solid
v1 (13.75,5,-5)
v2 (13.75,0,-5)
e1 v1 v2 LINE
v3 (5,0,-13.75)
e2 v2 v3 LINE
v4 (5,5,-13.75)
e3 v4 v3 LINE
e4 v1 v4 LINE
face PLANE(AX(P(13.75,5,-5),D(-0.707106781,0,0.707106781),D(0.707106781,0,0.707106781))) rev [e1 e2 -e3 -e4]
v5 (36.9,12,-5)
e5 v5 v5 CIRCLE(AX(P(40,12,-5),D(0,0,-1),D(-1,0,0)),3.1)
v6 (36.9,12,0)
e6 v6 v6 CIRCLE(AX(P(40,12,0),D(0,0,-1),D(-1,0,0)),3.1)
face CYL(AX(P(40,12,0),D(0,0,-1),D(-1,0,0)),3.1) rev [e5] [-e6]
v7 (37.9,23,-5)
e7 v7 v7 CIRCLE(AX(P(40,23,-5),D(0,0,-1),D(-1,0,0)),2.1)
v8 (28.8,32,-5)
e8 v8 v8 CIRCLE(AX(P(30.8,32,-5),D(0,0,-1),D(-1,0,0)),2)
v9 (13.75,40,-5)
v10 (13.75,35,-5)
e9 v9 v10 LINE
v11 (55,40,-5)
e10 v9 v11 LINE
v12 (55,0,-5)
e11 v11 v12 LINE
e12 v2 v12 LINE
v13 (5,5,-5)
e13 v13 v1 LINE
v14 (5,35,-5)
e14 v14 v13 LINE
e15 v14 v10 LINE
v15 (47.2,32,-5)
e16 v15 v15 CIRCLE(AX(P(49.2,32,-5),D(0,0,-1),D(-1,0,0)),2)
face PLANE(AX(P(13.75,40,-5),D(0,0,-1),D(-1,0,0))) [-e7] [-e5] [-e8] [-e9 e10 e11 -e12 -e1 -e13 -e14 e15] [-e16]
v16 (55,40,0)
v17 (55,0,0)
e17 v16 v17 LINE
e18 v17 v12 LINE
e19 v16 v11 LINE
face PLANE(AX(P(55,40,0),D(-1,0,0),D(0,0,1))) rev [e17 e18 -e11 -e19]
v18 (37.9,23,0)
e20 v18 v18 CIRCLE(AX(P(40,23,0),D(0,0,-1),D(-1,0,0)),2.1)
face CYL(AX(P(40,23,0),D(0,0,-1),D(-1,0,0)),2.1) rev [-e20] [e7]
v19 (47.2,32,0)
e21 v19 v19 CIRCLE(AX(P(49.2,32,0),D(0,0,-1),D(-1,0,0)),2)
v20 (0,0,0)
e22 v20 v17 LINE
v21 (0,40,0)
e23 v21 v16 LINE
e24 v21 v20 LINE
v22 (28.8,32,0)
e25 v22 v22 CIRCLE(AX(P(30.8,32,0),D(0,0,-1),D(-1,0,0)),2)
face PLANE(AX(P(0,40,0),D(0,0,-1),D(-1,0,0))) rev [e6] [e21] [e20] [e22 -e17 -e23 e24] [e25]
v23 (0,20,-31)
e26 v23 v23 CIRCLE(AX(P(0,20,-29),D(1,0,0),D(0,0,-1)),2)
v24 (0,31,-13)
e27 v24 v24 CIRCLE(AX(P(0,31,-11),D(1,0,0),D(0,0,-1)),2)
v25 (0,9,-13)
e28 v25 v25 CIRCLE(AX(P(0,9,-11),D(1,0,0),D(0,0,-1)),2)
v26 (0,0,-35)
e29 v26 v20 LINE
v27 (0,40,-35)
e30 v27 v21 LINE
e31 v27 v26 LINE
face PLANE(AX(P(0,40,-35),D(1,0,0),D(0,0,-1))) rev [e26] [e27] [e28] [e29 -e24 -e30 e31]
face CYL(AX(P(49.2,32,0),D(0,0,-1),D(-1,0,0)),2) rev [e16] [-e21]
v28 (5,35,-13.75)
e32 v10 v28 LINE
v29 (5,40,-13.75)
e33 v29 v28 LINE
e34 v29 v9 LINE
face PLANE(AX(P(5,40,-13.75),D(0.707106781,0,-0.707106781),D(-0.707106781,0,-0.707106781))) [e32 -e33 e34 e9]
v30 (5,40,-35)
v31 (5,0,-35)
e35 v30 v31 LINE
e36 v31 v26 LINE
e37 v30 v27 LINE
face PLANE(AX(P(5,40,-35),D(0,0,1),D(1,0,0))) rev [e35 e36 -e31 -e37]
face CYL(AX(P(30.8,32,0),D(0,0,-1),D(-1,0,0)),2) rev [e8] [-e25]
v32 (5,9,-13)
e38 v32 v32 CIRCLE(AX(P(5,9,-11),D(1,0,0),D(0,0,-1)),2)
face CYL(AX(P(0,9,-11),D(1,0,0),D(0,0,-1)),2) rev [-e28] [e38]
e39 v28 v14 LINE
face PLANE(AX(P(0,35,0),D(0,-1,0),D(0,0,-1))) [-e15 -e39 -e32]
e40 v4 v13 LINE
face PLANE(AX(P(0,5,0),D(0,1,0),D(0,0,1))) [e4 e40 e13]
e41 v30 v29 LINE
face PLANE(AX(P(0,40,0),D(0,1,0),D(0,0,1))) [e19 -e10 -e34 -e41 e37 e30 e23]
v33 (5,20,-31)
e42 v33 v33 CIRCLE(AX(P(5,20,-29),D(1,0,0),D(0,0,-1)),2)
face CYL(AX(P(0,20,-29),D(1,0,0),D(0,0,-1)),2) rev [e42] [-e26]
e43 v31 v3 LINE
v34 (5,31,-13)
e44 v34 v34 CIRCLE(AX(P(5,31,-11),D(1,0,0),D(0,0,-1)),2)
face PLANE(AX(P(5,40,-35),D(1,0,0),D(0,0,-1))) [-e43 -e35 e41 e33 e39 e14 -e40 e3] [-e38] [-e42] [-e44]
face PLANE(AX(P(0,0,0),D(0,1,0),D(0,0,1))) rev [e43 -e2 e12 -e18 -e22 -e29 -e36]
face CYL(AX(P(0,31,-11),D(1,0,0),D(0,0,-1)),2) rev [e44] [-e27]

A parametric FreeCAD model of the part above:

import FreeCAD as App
import Part
import Sketcher
Q = App.Units.Quantity

doc = App.newDocument("Part")
body = doc.addObject("PartDesign::Body", "Body")

sketch1 = body.newObject("Sketcher::SketchObject", "Sketch")
sketch1.AttachmentSupport = (doc.getObject("XZ_Plane"), [""])
sketch1.MapMode = "FlatFace"
sketch1.addGeometry([
    Part.LineSegment(App.Vector(0, 0, 0), App.Vector(55, 0, 0)),
    Part.LineSegment(App.Vector(55, 0, 0), App.Vector(55, -5, 0)),
    Part.LineSegment(App.Vector(55, -5, 0), App.Vector(14, -5, 0)),
    Part.LineSegment(App.Vector(14, -5, 0), App.Vector(5, -14, 0)),
    Part.LineSegment(App.Vector(5, -14, 0), App.Vector(5, -35, 0)),
    Part.LineSegment(App.Vector(5, -35, 0), App.Vector(0, -35, 0)),
    Part.LineSegment(App.Vector(0, -35, 0), App.Vector(0, 0, 0)),
], False)
sketch1.addConstraint([
    Sketcher.Constraint("Coincident", 0, 2, 1, 1),
    Sketcher.Constraint("Coincident", 1, 2, 2, 1),
    Sketcher.Constraint("Coincident", 2, 2, 3, 1),
    Sketcher.Constraint("Coincident", 3, 2, 4, 1),
    Sketcher.Constraint("Coincident", 4, 2, 5, 1),
    Sketcher.Constraint("Coincident", 5, 2, 6, 1),
    Sketcher.Constraint("Coincident", 6, 2, 0, 1),
    Sketcher.Constraint("Horizontal", 0),
    Sketcher.Constraint("Vertical", 1),
    Sketcher.Constraint("Horizontal", 2),
    Sketcher.Constraint("Vertical", 4),
    Sketcher.Constraint("Horizontal", 5),
    Sketcher.Constraint("Vertical", 6),
    Sketcher.Constraint("Coincident", 6, 2, -1, 1),
    Sketcher.Constraint("Equal", 5, 1),
    Sketcher.Constraint("DistanceX", 0, 1, 0, 2, 55.0),
    Sketcher.Constraint("DistanceX", 5, 2, 5, 1, 5.0),
    Sketcher.Constraint("DistanceY", 6, 1, 6, 2, 35.0),
    Sketcher.Constraint("Angle", 3, Q("-135 deg")),
    Sketcher.Constraint("DistanceX", 2, 2, 2, 1, 41.25),
])
pad1 = body.newObject("PartDesign::Pad", "Pad")
pad1.Profile = sketch1
pad1.Length = 40
pad1.Reversed = True

sketch2 = body.newObject("Sketcher::SketchObject", "Sketch001")
sketch2.AttachmentSupport = (doc.getObject("XZ_Plane"), [""])
sketch2.MapMode = "FlatFace"
sketch2.addGeometry([
    Part.LineSegment(App.Vector(5, -5, 0), App.Vector(5, -14, 0)),
    Part.LineSegment(App.Vector(5, -14, 0), App.Vector(14, -5, 0)),
    Part.LineSegment(App.Vector(14, -5, 0), App.Vector(5, -5, 0)),
], False)
sketch2.addConstraint([
    Sketcher.Constraint("Coincident", 0, 2, 1, 1),
    Sketcher.Constraint("Coincident", 1, 2, 2, 1),
    Sketcher.Constraint("Coincident", 2, 2, 0, 1),
    Sketcher.Constraint("Vertical", 0),
    Sketcher.Constraint("Horizontal", 2),
    Sketcher.Constraint("Equal", 2, 0),
    Sketcher.Constraint("DistanceX", -1, 1, 0, 2, 5.0),
    Sketcher.Constraint("DistanceY", 1, 2, -1, 1, 5.0),
    Sketcher.Constraint("DistanceX", 2, 2, 2, 1, 8.75),
])
pocket1 = body.newObject("PartDesign::Pocket", "Pocket")
pocket1.Profile = sketch2
pocket1.Length = 35

sketch3 = body.newObject("Sketcher::SketchObject", "Sketch002")
sketch3.AttachmentSupport = (doc.getObject("XZ_Plane"), [""])
sketch3.MapMode = "FlatFace"
sketch3.addGeometry([
    Part.LineSegment(App.Vector(5, -14, 0), App.Vector(14, -5, 0)),
    Part.LineSegment(App.Vector(14, -5, 0), App.Vector(5, -5, 0)),
    Part.LineSegment(App.Vector(5, -5, 0), App.Vector(5, -14, 0)),
], False)
sketch3.addConstraint([
    Sketcher.Constraint("Coincident", 0, 2, 1, 1),
    Sketcher.Constraint("Coincident", 1, 2, 2, 1),
    Sketcher.Constraint("Coincident", 2, 2, 0, 1),
    Sketcher.Constraint("Horizontal", 1),
    Sketcher.Constraint("Vertical", 2),
    Sketcher.Constraint("Equal", 1, 2),
    Sketcher.Constraint("DistanceY", 0, 2, -1, 1, 5.0),
    Sketcher.Constraint("DistanceX", -1, 1, 1, 2, 5.0),
    Sketcher.Constraint("DistanceX", 1, 2, 1, 1, 8.75),
])
pad2 = body.newObject("PartDesign::Pad", "Pad001")
pad2.Profile = sketch3
pad2.Length = 5
pad2.Reversed = True

sketch4 = body.newObject("Sketcher::SketchObject", "Sketch003")
sketch4.AttachmentSupport = (doc.getObject("XY_Plane"), [""])
sketch4.MapMode = "FlatFace"
sketch4.AttachmentOffset = App.Placement(App.Vector(0, 0, -5), App.Rotation())
sketch4.addGeometry([
    Part.Circle(App.Vector(49.2, 32, 0), App.Vector(0, 0, 1), 2),
    Part.Circle(App.Vector(40, 12, 0), App.Vector(0, 0, 1), 3.1),
    Part.Circle(App.Vector(40, 23, 0), App.Vector(0, 0, 1), 2.1),
    Part.Circle(App.Vector(30.8, 32, 0), App.Vector(0, 0, 1), 2),
], False)
sketch4.addConstraint([
    Sketcher.Constraint("Equal", 0, 3),
    Sketcher.Constraint("Horizontal", 0, 3, 3, 3),
    Sketcher.Constraint("Vertical", 1, 3, 2, 3),
    Sketcher.Constraint("Diameter", 0, 4.0),
    Sketcher.Constraint("Diameter", 1, 6.2),
    Sketcher.Constraint("Diameter", 2, 4.2),
    Sketcher.Constraint("DistanceY", -1, 1, 0, 3, 32.0),
    Sketcher.Constraint("DistanceX", -1, 1, 1, 3, 40.0),
    Sketcher.Constraint("DistanceY", -1, 1, 1, 3, 12.0),
    Sketcher.Constraint("DistanceY", -1, 1, 2, 3, 23.0),
    Sketcher.Constraint("DistanceX", -1, 1, 0, 3, 49.2),
    Sketcher.Constraint("DistanceX", -1, 1, 3, 3, 30.8),
])
pocket2 = body.newObject("PartDesign::Pocket", "Pocket001")
pocket2.Profile = sketch4
pocket2.Length = 5
pocket2.Reversed = True

sketch5 = body.newObject("Sketcher::SketchObject", "Sketch004")
sketch5.AttachmentSupport = (doc.getObject("YZ_Plane"), [""])
sketch5.MapMode = "FlatFace"
sketch5.AttachmentOffset = App.Placement(App.Vector(0, 0, 5), App.Rotation())
sketch5.addGeometry([
    Part.Circle(App.Vector(31, -11, 0), App.Vector(0, 0, 1), 2),
    Part.Circle(App.Vector(9, -11, 0), App.Vector(0, 0, 1), 2),
    Part.Circle(App.Vector(20, -29, 0), App.Vector(0, 0, 1), 2),
], False)
sketch5.addConstraint([
    Sketcher.Constraint("Equal", 0, 1),
    Sketcher.Constraint("Equal", 1, 2),
    Sketcher.Constraint("Horizontal", 0, 3, 1, 3),
    Sketcher.Constraint("Diameter", 0, 4.0),
    Sketcher.Constraint("DistanceX", -1, 1, 0, 3, 31.0),
    Sketcher.Constraint("DistanceY", 0, 3, -1, 1, 11.0),
    Sketcher.Constraint("DistanceX", -1, 1, 1, 3, 9.0),
    Sketcher.Constraint("DistanceX", -1, 1, 2, 3, 20.0),
    Sketcher.Constraint("DistanceY", 2, 3, -1, 1, 29.0),
])
pocket3 = body.newObject("PartDesign::Pocket", "Pocket002")
pocket3.Profile = sketch5
pocket3.Type = "ThroughAll"

doc.recompute()
